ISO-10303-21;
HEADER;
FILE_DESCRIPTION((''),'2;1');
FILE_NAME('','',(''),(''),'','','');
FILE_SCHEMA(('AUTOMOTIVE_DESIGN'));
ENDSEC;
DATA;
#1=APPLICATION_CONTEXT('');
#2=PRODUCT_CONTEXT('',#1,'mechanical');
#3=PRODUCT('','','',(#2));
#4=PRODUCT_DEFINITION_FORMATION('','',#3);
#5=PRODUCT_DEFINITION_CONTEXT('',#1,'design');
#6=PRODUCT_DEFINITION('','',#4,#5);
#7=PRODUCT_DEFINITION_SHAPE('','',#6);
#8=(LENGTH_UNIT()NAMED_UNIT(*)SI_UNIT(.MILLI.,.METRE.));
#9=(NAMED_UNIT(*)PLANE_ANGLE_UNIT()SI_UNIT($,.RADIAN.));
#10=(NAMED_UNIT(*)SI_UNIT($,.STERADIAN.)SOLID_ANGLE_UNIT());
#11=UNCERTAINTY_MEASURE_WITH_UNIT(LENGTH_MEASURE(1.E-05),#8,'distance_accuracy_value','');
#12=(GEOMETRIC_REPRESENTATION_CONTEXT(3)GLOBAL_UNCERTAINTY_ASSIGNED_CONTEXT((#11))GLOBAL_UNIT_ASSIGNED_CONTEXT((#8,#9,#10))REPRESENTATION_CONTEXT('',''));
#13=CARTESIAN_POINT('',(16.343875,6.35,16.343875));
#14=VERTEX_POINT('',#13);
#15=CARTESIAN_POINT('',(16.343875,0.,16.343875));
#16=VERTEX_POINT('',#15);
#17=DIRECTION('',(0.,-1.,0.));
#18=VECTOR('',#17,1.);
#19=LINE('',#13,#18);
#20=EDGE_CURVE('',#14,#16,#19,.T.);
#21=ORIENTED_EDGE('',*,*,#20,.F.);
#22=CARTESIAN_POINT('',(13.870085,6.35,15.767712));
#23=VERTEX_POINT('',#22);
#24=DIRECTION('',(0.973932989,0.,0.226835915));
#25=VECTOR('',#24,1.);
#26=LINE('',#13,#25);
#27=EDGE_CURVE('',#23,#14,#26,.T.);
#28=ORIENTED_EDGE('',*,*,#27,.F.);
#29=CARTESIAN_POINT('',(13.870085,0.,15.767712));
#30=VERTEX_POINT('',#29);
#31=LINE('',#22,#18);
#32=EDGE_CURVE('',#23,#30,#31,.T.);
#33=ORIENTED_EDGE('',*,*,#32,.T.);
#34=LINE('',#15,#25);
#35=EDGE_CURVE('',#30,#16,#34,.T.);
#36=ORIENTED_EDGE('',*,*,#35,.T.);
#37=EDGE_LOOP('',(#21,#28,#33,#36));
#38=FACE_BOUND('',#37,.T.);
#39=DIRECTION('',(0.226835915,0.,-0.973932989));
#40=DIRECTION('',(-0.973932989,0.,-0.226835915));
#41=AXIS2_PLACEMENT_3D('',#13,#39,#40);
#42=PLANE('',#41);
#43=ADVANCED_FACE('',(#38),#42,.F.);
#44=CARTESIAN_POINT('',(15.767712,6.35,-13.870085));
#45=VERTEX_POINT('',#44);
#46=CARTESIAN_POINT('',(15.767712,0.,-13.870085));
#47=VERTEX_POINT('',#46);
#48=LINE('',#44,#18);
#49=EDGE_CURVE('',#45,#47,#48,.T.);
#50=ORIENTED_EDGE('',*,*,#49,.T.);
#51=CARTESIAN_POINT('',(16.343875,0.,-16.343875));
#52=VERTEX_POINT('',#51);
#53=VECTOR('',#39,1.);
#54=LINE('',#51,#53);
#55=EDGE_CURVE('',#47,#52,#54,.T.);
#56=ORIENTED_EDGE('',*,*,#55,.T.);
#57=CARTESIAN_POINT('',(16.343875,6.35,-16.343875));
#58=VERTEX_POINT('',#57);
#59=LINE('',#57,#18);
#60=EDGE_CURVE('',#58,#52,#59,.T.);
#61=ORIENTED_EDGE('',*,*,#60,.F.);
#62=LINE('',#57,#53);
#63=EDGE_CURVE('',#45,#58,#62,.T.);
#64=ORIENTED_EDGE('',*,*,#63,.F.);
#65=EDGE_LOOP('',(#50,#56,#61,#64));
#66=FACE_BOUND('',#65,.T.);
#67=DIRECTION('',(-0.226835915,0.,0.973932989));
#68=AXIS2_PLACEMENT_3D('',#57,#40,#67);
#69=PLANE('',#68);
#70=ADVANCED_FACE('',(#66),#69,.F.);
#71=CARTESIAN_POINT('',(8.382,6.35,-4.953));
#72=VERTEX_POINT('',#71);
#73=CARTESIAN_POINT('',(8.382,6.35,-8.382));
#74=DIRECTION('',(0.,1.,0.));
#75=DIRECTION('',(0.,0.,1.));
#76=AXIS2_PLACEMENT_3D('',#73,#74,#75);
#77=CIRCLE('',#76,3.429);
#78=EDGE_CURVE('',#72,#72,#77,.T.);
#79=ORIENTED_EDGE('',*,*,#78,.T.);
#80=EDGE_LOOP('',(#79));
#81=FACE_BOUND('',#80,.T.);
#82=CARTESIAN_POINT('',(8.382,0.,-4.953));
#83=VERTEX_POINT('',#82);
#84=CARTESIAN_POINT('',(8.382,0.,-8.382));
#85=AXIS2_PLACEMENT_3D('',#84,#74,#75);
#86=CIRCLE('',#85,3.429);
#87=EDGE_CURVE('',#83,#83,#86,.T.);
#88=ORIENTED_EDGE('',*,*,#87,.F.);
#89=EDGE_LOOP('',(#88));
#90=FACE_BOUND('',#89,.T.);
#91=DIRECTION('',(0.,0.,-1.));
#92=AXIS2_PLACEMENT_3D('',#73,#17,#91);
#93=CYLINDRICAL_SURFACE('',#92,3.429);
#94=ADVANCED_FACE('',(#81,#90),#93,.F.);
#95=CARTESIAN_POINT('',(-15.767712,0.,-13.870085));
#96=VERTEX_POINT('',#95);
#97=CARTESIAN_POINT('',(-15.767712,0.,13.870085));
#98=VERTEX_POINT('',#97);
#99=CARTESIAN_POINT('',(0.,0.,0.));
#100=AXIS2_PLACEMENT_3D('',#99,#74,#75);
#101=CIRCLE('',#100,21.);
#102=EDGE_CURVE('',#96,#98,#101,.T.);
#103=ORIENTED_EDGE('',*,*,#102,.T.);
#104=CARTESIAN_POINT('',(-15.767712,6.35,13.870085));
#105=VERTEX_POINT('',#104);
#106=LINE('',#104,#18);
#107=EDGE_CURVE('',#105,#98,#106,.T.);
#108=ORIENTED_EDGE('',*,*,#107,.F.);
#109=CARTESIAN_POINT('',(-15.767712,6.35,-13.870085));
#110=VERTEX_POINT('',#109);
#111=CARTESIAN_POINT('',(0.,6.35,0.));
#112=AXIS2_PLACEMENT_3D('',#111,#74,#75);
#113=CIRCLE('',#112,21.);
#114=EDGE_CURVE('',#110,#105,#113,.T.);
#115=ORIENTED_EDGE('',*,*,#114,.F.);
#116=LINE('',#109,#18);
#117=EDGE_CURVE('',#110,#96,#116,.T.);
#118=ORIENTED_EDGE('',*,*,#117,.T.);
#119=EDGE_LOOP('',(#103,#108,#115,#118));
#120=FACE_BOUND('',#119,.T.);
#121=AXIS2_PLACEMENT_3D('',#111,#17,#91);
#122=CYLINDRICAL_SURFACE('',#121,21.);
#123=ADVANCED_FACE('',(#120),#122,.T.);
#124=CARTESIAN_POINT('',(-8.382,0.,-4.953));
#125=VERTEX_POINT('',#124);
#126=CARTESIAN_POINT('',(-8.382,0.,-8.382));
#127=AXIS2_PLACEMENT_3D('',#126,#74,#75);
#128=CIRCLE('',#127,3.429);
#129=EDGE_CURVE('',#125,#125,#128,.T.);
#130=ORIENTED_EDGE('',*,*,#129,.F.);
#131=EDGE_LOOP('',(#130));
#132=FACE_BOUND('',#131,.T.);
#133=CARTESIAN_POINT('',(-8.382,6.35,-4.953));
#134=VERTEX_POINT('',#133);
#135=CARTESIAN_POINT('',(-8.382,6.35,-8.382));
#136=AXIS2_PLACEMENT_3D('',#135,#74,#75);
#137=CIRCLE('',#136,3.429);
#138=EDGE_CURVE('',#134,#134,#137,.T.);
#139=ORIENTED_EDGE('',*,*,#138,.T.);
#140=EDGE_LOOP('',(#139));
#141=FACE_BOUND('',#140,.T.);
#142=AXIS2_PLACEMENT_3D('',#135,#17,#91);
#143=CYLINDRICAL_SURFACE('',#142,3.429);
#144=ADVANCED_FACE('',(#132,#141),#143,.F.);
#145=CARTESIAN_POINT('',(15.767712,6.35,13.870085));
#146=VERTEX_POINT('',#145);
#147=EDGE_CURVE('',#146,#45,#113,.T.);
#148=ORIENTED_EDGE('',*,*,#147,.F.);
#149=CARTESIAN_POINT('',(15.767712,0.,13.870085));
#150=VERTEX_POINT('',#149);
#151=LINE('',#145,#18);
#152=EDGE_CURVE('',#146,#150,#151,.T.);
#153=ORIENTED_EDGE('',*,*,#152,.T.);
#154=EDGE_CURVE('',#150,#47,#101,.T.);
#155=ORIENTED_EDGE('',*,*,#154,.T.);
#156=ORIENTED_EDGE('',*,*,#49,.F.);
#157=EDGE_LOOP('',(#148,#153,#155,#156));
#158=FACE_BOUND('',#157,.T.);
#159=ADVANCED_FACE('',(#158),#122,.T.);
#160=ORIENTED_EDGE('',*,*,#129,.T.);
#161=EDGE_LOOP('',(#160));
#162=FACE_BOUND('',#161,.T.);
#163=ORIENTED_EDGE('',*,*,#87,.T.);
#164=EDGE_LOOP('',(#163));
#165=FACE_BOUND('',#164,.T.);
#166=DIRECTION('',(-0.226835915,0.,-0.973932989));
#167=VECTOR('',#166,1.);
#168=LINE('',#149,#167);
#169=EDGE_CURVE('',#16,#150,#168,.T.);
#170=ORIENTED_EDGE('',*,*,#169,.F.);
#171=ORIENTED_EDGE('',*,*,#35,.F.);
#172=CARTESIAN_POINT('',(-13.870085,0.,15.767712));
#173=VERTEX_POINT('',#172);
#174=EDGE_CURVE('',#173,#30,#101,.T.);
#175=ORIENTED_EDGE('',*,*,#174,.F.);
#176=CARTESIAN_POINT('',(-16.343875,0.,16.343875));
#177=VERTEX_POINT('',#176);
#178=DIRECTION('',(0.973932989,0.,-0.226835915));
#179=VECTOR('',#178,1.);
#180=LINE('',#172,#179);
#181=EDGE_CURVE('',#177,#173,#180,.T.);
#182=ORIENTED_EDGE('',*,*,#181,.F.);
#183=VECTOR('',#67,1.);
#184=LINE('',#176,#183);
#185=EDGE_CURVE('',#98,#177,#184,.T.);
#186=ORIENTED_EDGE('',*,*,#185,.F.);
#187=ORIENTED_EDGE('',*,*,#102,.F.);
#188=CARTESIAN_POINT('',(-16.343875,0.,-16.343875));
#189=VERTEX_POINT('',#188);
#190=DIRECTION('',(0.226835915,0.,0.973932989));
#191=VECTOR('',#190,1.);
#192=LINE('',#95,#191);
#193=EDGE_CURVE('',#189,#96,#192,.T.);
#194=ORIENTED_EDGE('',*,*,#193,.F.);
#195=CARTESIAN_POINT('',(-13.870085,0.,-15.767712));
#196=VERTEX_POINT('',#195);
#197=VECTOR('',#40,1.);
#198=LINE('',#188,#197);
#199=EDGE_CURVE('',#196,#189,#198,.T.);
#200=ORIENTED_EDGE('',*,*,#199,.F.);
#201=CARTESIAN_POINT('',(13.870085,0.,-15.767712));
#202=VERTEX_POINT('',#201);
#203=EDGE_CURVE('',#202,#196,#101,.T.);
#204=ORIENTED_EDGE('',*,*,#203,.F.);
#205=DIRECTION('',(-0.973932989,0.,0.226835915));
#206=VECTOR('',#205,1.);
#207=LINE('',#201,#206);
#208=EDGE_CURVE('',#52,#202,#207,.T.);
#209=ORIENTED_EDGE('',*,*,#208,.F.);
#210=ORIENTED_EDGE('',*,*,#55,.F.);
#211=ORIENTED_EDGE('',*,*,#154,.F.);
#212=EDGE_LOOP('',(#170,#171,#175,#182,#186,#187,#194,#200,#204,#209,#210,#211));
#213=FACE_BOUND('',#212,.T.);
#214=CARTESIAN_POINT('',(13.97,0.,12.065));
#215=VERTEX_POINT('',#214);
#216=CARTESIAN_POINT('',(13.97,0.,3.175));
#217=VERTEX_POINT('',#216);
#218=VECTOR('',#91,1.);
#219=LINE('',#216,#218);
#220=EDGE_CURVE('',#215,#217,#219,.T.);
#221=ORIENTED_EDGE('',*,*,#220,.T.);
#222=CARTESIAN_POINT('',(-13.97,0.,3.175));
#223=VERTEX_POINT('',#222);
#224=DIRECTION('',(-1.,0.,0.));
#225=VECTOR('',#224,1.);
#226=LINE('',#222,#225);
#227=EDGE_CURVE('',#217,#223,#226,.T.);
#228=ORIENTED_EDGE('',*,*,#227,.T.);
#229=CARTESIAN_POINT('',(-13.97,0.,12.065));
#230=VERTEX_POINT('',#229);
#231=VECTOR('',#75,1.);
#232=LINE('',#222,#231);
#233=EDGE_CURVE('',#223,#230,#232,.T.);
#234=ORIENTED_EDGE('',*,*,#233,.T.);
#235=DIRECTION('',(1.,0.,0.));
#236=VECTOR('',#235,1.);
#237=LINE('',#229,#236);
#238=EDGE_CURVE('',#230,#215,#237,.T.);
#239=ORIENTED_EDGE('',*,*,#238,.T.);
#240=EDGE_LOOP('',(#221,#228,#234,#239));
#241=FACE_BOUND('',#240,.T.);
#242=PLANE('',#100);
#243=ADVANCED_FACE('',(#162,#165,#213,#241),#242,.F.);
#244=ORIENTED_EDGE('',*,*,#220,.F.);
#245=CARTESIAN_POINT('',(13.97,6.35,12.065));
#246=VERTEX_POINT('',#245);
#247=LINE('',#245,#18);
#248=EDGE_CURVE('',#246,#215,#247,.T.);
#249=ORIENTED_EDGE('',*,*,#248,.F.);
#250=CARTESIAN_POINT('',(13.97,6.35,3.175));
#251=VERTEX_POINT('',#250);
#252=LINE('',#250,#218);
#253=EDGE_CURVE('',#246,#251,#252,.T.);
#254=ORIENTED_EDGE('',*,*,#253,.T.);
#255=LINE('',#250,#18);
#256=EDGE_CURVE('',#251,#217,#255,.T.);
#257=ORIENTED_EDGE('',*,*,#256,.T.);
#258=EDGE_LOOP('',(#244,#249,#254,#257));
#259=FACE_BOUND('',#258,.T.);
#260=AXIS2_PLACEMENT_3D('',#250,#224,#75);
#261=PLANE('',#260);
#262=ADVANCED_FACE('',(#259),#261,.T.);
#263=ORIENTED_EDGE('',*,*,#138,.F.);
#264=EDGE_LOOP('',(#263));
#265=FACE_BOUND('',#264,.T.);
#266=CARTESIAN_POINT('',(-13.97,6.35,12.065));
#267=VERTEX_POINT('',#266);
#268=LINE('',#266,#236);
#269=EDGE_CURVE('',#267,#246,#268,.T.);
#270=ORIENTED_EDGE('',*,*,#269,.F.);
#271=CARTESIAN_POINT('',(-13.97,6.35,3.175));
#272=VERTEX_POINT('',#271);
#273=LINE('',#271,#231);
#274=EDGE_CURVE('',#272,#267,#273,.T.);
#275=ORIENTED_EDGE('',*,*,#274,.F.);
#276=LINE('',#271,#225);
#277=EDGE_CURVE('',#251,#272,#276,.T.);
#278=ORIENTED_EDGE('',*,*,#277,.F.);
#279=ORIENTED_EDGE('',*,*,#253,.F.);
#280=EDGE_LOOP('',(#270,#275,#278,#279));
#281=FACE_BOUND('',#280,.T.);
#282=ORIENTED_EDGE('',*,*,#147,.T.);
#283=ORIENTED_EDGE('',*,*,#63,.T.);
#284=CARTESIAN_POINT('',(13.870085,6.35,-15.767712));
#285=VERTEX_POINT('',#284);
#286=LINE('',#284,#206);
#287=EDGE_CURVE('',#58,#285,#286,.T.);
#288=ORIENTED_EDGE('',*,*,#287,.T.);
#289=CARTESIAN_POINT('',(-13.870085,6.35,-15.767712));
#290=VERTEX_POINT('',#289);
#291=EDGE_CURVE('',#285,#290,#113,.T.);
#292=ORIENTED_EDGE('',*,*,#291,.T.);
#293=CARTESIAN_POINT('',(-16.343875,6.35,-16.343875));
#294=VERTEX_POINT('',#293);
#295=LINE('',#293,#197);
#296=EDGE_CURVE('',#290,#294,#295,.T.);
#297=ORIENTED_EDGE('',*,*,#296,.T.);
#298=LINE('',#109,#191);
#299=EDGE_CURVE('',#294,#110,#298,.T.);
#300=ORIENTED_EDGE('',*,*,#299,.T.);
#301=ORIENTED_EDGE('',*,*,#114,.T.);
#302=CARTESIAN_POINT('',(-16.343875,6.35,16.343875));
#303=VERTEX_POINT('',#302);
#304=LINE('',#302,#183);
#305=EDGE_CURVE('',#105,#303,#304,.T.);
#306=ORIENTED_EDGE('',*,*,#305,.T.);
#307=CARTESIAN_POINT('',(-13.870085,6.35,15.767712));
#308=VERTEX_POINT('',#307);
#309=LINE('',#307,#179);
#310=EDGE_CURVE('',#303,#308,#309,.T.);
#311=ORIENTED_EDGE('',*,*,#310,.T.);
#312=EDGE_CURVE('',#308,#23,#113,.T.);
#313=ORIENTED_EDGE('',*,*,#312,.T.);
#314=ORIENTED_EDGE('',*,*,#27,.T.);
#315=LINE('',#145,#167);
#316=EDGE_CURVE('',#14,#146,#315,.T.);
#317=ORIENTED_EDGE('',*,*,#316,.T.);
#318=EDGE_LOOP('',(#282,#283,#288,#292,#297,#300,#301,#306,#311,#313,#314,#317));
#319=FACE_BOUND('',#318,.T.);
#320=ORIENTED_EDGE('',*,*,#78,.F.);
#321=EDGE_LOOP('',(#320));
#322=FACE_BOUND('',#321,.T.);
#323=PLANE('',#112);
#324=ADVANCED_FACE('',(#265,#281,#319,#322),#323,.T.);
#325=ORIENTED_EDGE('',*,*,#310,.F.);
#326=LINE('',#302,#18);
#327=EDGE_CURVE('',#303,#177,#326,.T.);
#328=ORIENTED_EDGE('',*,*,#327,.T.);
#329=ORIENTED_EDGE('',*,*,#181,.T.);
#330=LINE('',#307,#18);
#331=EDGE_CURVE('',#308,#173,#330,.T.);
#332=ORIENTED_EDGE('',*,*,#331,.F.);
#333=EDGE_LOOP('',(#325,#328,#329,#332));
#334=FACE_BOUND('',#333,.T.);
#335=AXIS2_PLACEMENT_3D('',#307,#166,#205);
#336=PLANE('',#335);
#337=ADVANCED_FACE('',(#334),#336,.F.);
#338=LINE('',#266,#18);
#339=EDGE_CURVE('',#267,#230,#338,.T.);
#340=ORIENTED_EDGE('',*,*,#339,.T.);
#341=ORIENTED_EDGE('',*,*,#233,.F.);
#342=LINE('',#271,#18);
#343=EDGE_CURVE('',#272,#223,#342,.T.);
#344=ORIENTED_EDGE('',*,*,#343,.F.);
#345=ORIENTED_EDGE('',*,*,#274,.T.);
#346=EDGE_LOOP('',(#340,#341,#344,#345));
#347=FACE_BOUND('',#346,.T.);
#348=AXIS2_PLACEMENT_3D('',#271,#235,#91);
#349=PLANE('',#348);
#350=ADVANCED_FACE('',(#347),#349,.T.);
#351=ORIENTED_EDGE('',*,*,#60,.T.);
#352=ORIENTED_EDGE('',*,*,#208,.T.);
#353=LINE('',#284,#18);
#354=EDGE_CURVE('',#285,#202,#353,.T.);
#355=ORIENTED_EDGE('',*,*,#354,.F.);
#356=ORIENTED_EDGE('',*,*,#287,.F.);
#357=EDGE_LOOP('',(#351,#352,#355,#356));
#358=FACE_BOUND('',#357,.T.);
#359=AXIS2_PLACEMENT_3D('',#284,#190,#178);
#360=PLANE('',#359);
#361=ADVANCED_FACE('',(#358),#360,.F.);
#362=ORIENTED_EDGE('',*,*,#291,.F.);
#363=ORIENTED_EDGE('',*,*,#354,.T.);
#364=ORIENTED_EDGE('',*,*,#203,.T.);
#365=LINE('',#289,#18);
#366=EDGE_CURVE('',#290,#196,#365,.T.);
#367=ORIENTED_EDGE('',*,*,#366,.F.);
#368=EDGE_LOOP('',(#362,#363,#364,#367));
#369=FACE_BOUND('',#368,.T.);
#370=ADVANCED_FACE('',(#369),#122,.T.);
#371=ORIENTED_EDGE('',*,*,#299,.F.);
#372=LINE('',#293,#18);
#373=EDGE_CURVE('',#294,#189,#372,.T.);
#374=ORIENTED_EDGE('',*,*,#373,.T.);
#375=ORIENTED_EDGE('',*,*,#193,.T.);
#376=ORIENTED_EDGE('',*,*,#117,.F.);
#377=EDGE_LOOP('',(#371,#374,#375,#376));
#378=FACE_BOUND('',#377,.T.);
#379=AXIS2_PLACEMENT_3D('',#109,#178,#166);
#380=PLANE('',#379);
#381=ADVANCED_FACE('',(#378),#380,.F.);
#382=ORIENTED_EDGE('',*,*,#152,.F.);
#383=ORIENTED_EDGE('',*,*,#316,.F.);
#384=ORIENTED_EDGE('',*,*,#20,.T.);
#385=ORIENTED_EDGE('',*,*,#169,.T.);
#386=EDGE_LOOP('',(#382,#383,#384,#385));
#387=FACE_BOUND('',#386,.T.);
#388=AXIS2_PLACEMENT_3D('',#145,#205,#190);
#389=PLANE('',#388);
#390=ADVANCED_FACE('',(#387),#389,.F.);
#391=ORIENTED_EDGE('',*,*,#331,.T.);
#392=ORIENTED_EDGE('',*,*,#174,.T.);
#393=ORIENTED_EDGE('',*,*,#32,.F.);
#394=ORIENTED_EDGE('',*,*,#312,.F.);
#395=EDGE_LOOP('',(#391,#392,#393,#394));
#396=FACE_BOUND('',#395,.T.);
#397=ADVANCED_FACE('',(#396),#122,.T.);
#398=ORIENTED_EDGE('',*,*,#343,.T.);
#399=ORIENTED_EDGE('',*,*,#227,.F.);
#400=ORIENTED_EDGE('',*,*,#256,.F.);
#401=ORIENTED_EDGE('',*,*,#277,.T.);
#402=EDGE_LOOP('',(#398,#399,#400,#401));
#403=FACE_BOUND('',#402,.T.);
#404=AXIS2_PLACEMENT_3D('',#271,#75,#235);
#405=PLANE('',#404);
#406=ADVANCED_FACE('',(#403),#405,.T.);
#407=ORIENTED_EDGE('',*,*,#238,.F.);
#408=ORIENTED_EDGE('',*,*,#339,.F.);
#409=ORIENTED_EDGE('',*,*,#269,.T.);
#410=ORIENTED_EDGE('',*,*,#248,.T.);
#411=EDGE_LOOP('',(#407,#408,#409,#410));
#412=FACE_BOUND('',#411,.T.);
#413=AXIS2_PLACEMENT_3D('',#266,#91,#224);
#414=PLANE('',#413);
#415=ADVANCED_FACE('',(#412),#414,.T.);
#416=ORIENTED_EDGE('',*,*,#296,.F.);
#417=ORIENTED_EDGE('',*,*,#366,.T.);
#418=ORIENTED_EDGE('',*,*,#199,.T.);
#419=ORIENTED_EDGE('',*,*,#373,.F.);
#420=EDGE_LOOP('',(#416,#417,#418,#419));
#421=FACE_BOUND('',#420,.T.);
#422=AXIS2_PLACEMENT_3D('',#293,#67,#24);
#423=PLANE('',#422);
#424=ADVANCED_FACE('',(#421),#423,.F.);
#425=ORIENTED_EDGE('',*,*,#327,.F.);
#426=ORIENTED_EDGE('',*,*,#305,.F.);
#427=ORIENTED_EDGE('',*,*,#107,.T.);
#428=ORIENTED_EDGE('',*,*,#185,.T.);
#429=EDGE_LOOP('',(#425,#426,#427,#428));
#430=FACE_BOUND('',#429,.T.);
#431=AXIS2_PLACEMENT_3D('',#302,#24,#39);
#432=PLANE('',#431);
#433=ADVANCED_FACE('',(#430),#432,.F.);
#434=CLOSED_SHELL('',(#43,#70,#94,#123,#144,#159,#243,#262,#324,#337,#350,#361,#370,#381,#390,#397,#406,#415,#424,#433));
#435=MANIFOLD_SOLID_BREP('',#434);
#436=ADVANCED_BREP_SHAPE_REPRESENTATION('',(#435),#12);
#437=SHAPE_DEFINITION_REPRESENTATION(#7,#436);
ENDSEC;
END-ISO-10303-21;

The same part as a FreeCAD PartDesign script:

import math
import FreeCAD as App
import Part
import Sketcher

V = App.Vector
Q = App.Units.Quantity

doc = App.newDocument("Part")
body = doc.addObject("PartDesign::Body", "Body")

sketch1 = doc.addObject("Sketcher::SketchObject", "Sketch")
body.addObject(sketch1)
sketch1.AttachmentSupport = (doc.XZ_Plane, [""])
sketch1.MapMode = "FlatFace"
sketch1.addGeometry(Part.LineSegment(V(16.3, -16.3, 0), V(13.9, -15.8, 0)), False)
sketch1.addGeometry(Part.ArcOfCircle(Part.Circle(V(0, 0, 0), V(0, 0, 1), 21), math.radians(-131), math.radians(-49)), False)
sketch1.addGeometry(Part.LineSegment(V(-13.9, -15.8, 0), V(-16.3, -16.3, 0)), False)
sketch1.addGeometry(Part.LineSegment(V(-16.3, -16.3, 0), V(-15.8, -13.9, 0)), False)
sketch1.addGeometry(Part.ArcOfCircle(Part.Circle(V(0, 0, 0), V(0, 0, 1), 21), math.radians(139), math.radians(221)), False)
sketch1.addGeometry(Part.LineSegment(V(-15.8, 13.9, 0), V(-16.3, 16.3, 0)), False)
sketch1.addGeometry(Part.LineSegment(V(-16.3, 16.3, 0), V(-13.9, 15.8, 0)), False)
sketch1.addGeometry(Part.ArcOfCircle(Part.Circle(V(0, 0, 0), V(0, 0, 1), 21), math.radians(49), math.radians(131)), False)
sketch1.addGeometry(Part.LineSegment(V(13.9, 15.8, 0), V(16.3, 16.3, 0)), False)
sketch1.addGeometry(Part.LineSegment(V(16.3, 16.3, 0), V(15.8, 13.9, 0)), False)
sketch1.addGeometry(Part.ArcOfCircle(Part.Circle(V(0, 0, 0), V(0, 0, 1), 21), math.radians(-41), math.radians(41)), False)
sketch1.addGeometry(Part.LineSegment(V(15.8, -13.9, 0), V(16.3, -16.3, 0)), False)
sketch1.addGeometry(Part.LineSegment(V(-14, 12.1, 0), V(-14, 3.2, 0)), False)
sketch1.addGeometry(Part.LineSegment(V(-14, 3.2, 0), V(14, 3.2, 0)), False)
sketch1.addGeometry(Part.LineSegment(V(14, 3.2, 0), V(14, 12.1, 0)), False)
sketch1.addGeometry(Part.LineSegment(V(14, 12.1, 0), V(-14, 12.1, 0)), False)
sketch1.addGeometry(Part.Circle(V(8.4, -8.4, 0), V(0, 0, 1), 3.4), False)
sketch1.addGeometry(Part.Circle(V(-8.4, -8.4, 0), V(0, 0, 1), 3.4), False)
sketch1.addConstraint(Sketcher.Constraint("Coincident", 0, 2, 1, 2))
sketch1.addConstraint(Sketcher.Constraint("Coincident", 1, 1, 2, 1))
sketch1.addConstraint(Sketcher.Constraint("Coincident", 2, 2, 3, 1))
sketch1.addConstraint(Sketcher.Constraint("Coincident", 3, 2, 4, 2))
sketch1.addConstraint(Sketcher.Constraint("Coincident", 4, 1, 5, 1))
sketch1.addConstraint(Sketcher.Constraint("Coincident", 5, 2, 6, 1))
sketch1.addConstraint(Sketcher.Constraint("Coincident", 6, 2, 7, 2))
sketch1.addConstraint(Sketcher.Constraint("Coincident", 7, 1, 8, 1))
sketch1.addConstraint(Sketcher.Constraint("Coincident", 8, 2, 9, 1))
sketch1.addConstraint(Sketcher.Constraint("Coincident", 9, 2, 10, 2))
sketch1.addConstraint(Sketcher.Constraint("Coincident", 10, 1, 11, 1))
sketch1.addConstraint(Sketcher.Constraint("Coincident", 11, 2, 0, 1))
sketch1.addConstraint(Sketcher.Constraint("Coincident", 12, 2, 13, 1))
sketch1.addConstraint(Sketcher.Constraint("Coincident", 13, 2, 14, 1))
sketch1.addConstraint(Sketcher.Constraint("Coincident", 14, 2, 15, 1))
sketch1.addConstraint(Sketcher.Constraint("Coincident", 15, 2, 12, 1))
sketch1.addConstraint(Sketcher.Constraint("Vertical", 12))
sketch1.addConstraint(Sketcher.Constraint("Horizontal", 13))
sketch1.addConstraint(Sketcher.Constraint("Vertical", 14))
sketch1.addConstraint(Sketcher.Constraint("Horizontal", 15))
sketch1.addConstraint(Sketcher.Constraint("Coincident", 1, 3, -1, 1))
sketch1.addConstraint(Sketcher.Constraint("Coincident", 4, 3, -1, 1))
sketch1.addConstraint(Sketcher.Constraint("Coincident", 7, 3, -1, 1))
sketch1.addConstraint(Sketcher.Constraint("Coincident", 10, 3, -1, 1))
sketch1.addConstraint(Sketcher.Constraint("Equal", 1, 4))
sketch1.addConstraint(Sketcher.Constraint("Equal", 4, 7))
sketch1.addConstraint(Sketcher.Constraint("Equal", 7, 10))
sketch1.addConstraint(Sketcher.Constraint("Equal", 16, 17))
sketch1.addConstraint(Sketcher.Constraint("Symmetric", 2, 2, 8, 2, -1, 1))
sketch1.addConstraint(Sketcher.Constraint("Symmetric", 5, 2, 11, 2, -1, 1))
sketch1.addConstraint(Sketcher.Constraint("Symmetric", 16, 3, 17, 3, -2))
sketch1.addConstraint(Sketcher.Constraint("Symmetric", 5, 2, 8, 2, -2))
sketch1.addConstraint(Sketcher.Constraint("Perpendicular", 0, 3))
sketch1.addConstraint(Sketcher.Constraint("Perpendicular", 2, 5))
sketch1.addConstraint(Sketcher.Constraint("Perpendicular", 3, 6))
sketch1.addConstraint(Sketcher.Constraint("Perpendicular", 5, 8))
sketch1.addConstraint(Sketcher.Constraint("Perpendicular", 6, 9))
sketch1.addConstraint(Sketcher.Constraint("Perpendicular", 8, 11))
sketch1.addConstraint(Sketcher.Constraint("Horizontal", 0, 2, 1, 1))
sketch1.addConstraint(Sketcher.Constraint("Equal", 2, 3))
sketch1.addConstraint(Sketcher.Constraint("Diameter", 16, Q("0.27 in")))
sketch1.addConstraint(Sketcher.Constraint("DistanceX", 13, 1, 13, 2, Q("1.1 in")))
sketch1.addConstraint(Sketcher.Constraint("Distance", 0, Q("0.1 in")))
sketch1.addConstraint(Sketcher.Constraint("DistanceY", 12, 2, 12, 1, Q("0.35 in")))
sketch1.addConstraint(Sketcher.Constraint("DistanceX", -1, 1, 16, 3, Q("0.33 in")))
sketch1.addConstraint(Sketcher.Constraint("DistanceY", 16, 3, -1, 1, Q("0.33 in")))
sketch1.addConstraint(Sketcher.Constraint("DistanceX", 12, 2, -1, 1, Q("0.55 in")))
sketch1.addConstraint(Sketcher.Constraint("Radius", 1, 21.0))
sketch1.addConstraint(Sketcher.Constraint("DistanceY", -1, 1, 12, 2, Q("0.125 in")))
sketch1.addConstraint(Sketcher.Constraint("DistanceY", 0, 2, -1, 1, 15.767712))
pad1 = doc.addObject("PartDesign::Pad", "Pad")
body.addObject(pad1)
pad1.Profile = sketch1
pad1.Length = Q("0.25 in")
pad1.Reversed = True

doc.recompute()
